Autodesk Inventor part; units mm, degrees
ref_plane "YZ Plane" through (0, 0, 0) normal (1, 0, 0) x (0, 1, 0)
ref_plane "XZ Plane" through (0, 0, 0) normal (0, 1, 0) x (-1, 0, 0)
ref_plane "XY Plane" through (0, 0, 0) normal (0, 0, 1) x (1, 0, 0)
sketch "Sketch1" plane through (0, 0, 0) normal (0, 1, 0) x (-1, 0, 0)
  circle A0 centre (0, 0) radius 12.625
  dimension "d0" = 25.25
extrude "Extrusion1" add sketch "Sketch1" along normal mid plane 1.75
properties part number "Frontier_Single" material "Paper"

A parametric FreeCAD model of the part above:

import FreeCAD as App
import Part
import Sketcher
from FreeCAD import Vector
Q = App.Units.Quantity

doc = App.newDocument("Part")
params = doc.addObject("Spreadsheet::Sheet", "Params")
for row, (alias, value) in enumerate([
    ("sketch1_diameter", "25.25 mm"),
    ("pad1_length", "1.75 mm"),
], start=1):
    params.set(f"A{row}", alias)
    params.set(f"B{row}", "=" + value)
    params.setAlias(f"B{row}", alias)

body = doc.addObject("PartDesign::Body", "Body")

sketch1 = body.newObject("Sketcher::SketchObject", "Sketch")
sketch1.AttachmentSupport = (doc.getObject("XZ_Plane"), [""])
sketch1.MapMode = "FlatFace"
sketch1.addGeometry(Part.Circle(Vector(0, 0, 0), Vector(0, 0, 1), 13), False)
sketch1.addConstraint([
    Sketcher.Constraint("Coincident", 0, 3, -1, 1),
    Sketcher.Constraint("Diameter", 0, Q("25.25 mm")),
])
sketch1.setExpression("Constraints[1]", "Params.sketch1_diameter")
pad1 = body.newObject("PartDesign::Pad", "Pad")
pad1.Profile = sketch1
pad1.setExpression("Length", "Params.pad1_length")
pad1.Midplane = True

doc.recompute()
